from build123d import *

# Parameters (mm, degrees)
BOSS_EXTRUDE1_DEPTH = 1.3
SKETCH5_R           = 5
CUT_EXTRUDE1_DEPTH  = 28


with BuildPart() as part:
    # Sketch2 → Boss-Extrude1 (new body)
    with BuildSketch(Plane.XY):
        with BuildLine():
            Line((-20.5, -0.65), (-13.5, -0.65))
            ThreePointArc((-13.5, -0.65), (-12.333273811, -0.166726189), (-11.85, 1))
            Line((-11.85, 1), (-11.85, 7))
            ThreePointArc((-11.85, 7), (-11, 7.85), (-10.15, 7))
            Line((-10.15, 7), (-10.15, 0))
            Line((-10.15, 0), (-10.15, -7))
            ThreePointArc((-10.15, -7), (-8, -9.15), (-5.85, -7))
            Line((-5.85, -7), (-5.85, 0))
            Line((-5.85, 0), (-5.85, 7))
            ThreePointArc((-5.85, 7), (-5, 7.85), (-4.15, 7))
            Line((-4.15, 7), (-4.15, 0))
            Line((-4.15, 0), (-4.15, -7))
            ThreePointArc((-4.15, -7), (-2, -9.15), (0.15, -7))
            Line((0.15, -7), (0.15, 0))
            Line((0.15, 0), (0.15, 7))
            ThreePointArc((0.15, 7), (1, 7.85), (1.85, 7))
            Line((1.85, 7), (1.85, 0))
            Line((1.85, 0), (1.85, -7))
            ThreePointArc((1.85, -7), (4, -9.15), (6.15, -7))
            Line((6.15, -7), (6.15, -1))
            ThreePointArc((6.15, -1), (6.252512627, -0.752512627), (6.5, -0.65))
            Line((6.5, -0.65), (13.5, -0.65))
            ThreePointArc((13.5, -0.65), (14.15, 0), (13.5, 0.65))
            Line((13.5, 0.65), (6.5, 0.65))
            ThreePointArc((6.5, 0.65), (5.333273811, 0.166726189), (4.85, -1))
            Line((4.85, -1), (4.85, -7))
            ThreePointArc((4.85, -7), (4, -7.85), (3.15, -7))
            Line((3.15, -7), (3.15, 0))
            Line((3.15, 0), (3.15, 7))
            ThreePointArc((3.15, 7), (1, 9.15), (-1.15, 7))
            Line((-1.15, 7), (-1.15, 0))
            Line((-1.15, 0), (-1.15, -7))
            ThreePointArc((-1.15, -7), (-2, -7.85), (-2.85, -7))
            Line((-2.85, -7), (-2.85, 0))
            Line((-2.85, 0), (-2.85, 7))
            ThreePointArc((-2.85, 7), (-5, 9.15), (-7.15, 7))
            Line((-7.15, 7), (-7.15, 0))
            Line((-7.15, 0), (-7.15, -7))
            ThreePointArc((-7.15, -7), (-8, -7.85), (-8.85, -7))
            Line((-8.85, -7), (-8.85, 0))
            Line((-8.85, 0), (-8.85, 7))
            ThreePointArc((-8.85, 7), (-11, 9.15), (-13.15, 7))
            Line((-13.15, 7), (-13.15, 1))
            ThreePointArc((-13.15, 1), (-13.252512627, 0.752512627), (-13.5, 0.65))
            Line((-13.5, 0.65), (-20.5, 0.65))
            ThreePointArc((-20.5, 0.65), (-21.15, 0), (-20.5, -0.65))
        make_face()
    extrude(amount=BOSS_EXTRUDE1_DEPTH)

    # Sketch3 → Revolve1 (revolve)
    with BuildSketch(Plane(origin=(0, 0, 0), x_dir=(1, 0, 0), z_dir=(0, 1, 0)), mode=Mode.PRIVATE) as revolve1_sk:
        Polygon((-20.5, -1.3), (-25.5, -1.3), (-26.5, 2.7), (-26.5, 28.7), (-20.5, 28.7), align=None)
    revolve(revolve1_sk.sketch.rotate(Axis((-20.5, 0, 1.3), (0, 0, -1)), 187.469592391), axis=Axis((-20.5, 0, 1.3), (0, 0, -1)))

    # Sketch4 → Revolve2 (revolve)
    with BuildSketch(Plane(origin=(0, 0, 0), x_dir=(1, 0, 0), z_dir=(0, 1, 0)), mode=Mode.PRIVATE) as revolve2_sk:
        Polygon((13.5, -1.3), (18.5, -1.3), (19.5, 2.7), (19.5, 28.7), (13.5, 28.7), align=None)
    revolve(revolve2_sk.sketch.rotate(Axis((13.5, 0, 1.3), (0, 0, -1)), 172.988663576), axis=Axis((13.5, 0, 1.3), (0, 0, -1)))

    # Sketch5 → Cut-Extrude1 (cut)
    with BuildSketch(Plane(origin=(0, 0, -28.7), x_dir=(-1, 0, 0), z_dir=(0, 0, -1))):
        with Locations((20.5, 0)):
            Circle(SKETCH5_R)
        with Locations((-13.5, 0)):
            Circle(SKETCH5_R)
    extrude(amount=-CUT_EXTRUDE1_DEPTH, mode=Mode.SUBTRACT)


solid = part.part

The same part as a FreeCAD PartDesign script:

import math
import FreeCAD as App
import Part
import Sketcher

doc = App.newDocument("Part")
params = doc.addObject("Spreadsheet::Sheet", "Params")
for row, (alias, value) in enumerate([
    ("sketch1_width", "7 mm"),
    ("sketch1_height", "6 mm"),
    ("sketch1_height2", "14 mm"),
    ("sketch1_radius", "1.65 mm"),
    ("sketch1_radius2", "0.85 mm"),
    ("pad1_length", "1.3 mm"),
    ("sketch2_width", "5 mm"),
    ("sketch2_width2", "6 mm"),
    ("sketch2_height", "30 mm"),
    ("sketch2_height2", "26 mm"),
    ("revolution_angle", "360 deg"),
    ("sketch3_width", "5 mm"),
    ("sketch3_width2", "6 mm"),
    ("sketch3_height", "26 mm"),
    ("sketch3_height2", "30 mm"),
    ("revolution2_angle", "360 deg"),
    ("sketch4_diameter", "10 mm"),
    ("pocket1_length", "28 mm"),
], start=1):
    params.set(f"A{row}", alias)
    params.set(f"B{row}", "=" + value)
    params.setAlias(f"B{row}", alias)

body = doc.addObject("PartDesign::Body", "Body")

# Sketch on XY plane
sketch1 = body.newObject("Sketcher::SketchObject", "Sketch")
sketch1.AttachmentSupport = (doc.getObject("XY_Plane"), [""])
sketch1.MapMode = "FlatFace"
sketch1.addGeometry(Part.LineSegment(App.Vector(-20.5, -0.65, 0), App.Vector(-13.5, -0.65, 0)), False)
sketch1.addGeometry(Part.ArcOfCircle(Part.Circle(App.Vector(-13.5, 1, 0), App.Vector(0, 0, 1), 1.65), math.radians(-90), math.radians(0)), False)
sketch1.addGeometry(Part.LineSegment(App.Vector(-11.85, 1, 0), App.Vector(-11.85, 7, 0)), False)
sketch1.addGeometry(Part.ArcOfCircle(Part.Circle(App.Vector(-11, 7, 0), App.Vector(0, 0, 1), 0.85), math.radians(0), math.radians(180)), False)
sketch1.addGeometry(Part.LineSegment(App.Vector(-10.15, 7, 0), App.Vector(-10.15, -7, 0)), False)
sketch1.addGeometry(Part.ArcOfCircle(Part.Circle(App.Vector(-8, -7, 0), App.Vector(0, 0, 1), 2.15), math.radians(180), math.radians(360)), False)
sketch1.addGeometry(Part.LineSegment(App.Vector(-5.85, -7, 0), App.Vector(-5.85, 7, 0)), False)
sketch1.addGeometry(Part.ArcOfCircle(Part.Circle(App.Vector(-5, 7, 0), App.Vector(0, 0, 1), 0.85), math.radians(0), math.radians(180)), False)
sketch1.addGeometry(Part.LineSegment(App.Vector(-4.15, 7, 0), App.Vector(-4.15, -7, 0)), False)
sketch1.addGeometry(Part.ArcOfCircle(Part.Circle(App.Vector(-2, -7, 0), App.Vector(0, 0, 1), 2.15), math.radians(180), math.radians(360)), False)
sketch1.addGeometry(Part.LineSegment(App.Vector(0.15, -7, 0), App.Vector(0.15, 7, 0)), False)
sketch1.addGeometry(Part.ArcOfCircle(Part.Circle(App.Vector(1, 7, 0), App.Vector(0, 0, 1), 0.85), math.radians(0), math.radians(180)), False)
sketch1.addGeometry(Part.LineSegment(App.Vector(1.85, 7, 0), App.Vector(1.85, -7, 0)), False)
sketch1.addGeometry(Part.ArcOfCircle(Part.Circle(App.Vector(4, -7, 0), App.Vector(0, 0, 1), 2.15), math.radians(180), math.radians(360)), False)
sketch1.addGeometry(Part.LineSegment(App.Vector(6.15, -7, 0), App.Vector(6.15, -1, 0)), False)
sketch1.addGeometry(Part.ArcOfCircle(Part.Circle(App.Vector(6.5, -1, 0), App.Vector(0, 0, 1), 0.35), math.radians(90), math.radians(180)), False)
sketch1.addGeometry(Part.LineSegment(App.Vector(6.5, -0.65, 0), App.Vector(13.5, -0.65, 0)), False)
sketch1.addGeometry(Part.ArcOfCircle(Part.Circle(App.Vector(13.5, 0, 0), App.Vector(0, 0, 1), 0.65), math.radians(-90), math.radians(90)), False)
sketch1.addGeometry(Part.LineSegment(App.Vector(13.5, 0.65, 0), App.Vector(6.5, 0.65, 0)), False)
sketch1.addGeometry(Part.ArcOfCircle(Part.Circle(App.Vector(6.5, -1, 0), App.Vector(0, 0, 1), 1.65), math.radians(90), math.radians(180)), False)
sketch1.addGeometry(Part.LineSegment(App.Vector(4.85, -1, 0), App.Vector(4.85, -7, 0)), False)
sketch1.addGeometry(Part.ArcOfCircle(Part.Circle(App.Vector(4, -7, 0), App.Vector(0, 0, 1), 0.85), math.radians(180), math.radians(360)), False)
sketch1.addGeometry(Part.LineSegment(App.Vector(3.15, -7, 0), App.Vector(3.15, 7, 0)), False)
sketch1.addGeometry(Part.ArcOfCircle(Part.Circle(App.Vector(1, 7, 0), App.Vector(0, 0, 1), 2.15), math.radians(0), math.radians(180)), False)
sketch1.addGeometry(Part.LineSegment(App.Vector(-1.15, 7, 0), App.Vector(-1.15, -7, 0)), False)
sketch1.addGeometry(Part.ArcOfCircle(Part.Circle(App.Vector(-2, -7, 0), App.Vector(0, 0, 1), 0.85), math.radians(180), math.radians(360)), False)
sketch1.addGeometry(Part.LineSegment(App.Vector(-2.85, -7, 0), App.Vector(-2.85, 7, 0)), False)
sketch1.addGeometry(Part.ArcOfCircle(Part.Circle(App.Vector(-5, 7, 0), App.Vector(0, 0, 1), 2.15), math.radians(0), math.radians(180)), False)
sketch1.addGeometry(Part.LineSegment(App.Vector(-7.15, 7, 0), App.Vector(-7.15, -7, 0)), False)
sketch1.addGeometry(Part.ArcOfCircle(Part.Circle(App.Vector(-8, -7, 0), App.Vector(0, 0, 1), 0.85), math.radians(180), math.radians(360)), False)
sketch1.addGeometry(Part.LineSegment(App.Vector(-8.85, -7, 0), App.Vector(-8.85, 7, 0)), False)
sketch1.addGeometry(Part.ArcOfCircle(Part.Circle(App.Vector(-11, 7, 0), App.Vector(0, 0, 1), 2.15), math.radians(0), math.radians(180)), False)
sketch1.addGeometry(Part.LineSegment(App.Vector(-13.15, 7, 0), App.Vector(-13.15, 1, 0)), False)
sketch1.addGeometry(Part.ArcOfCircle(Part.Circle(App.Vector(-13.5, 1, 0), App.Vector(0, 0, 1), 0.35), math.radians(-90), math.radians(0)), False)
sketch1.addGeometry(Part.LineSegment(App.Vector(-13.5, 0.65, 0), App.Vector(-20.5, 0.65, 0)), False)
sketch1.addGeometry(Part.ArcOfCircle(Part.Circle(App.Vector(-20.5, 0, 0), App.Vector(0, 0, 1), 0.65), math.radians(90), math.radians(270)), False)
sketch1.addConstraint(Sketcher.Constraint("Tangent", 0, 2, 1, 1))
sketch1.addConstraint(Sketcher.Constraint("Tangent", 1, 2, 2, 1))
sketch1.addConstraint(Sketcher.Constraint("Tangent", 2, 2, 3, 2))
sketch1.addConstraint(Sketcher.Constraint("Tangent", 3, 1, 4, 1))
sketch1.addConstraint(Sketcher.Constraint("Tangent", 4, 2, 5, 1))
sketch1.addConstraint(Sketcher.Constraint("Tangent", 5, 2, 6, 1))
sketch1.addConstraint(Sketcher.Constraint("Tangent", 6, 2, 7, 2))
sketch1.addConstraint(Sketcher.Constraint("Tangent", 7, 1, 8, 1))
sketch1.addConstraint(Sketcher.Constraint("Tangent", 8, 2, 9, 1))
sketch1.addConstraint(Sketcher.Constraint("Tangent", 9, 2, 10, 1))
sketch1.addConstraint(Sketcher.Constraint("Tangent", 10, 2, 11, 2))
sketch1.addConstraint(Sketcher.Constraint("Tangent", 11, 1, 12, 1))
sketch1.addConstraint(Sketcher.Constraint("Tangent", 12, 2, 13, 1))
sketch1.addConstraint(Sketcher.Constraint("Tangent", 13, 2, 14, 1))
sketch1.addConstraint(Sketcher.Constraint("Tangent", 14, 2, 15, 2))
sketch1.addConstraint(Sketcher.Constraint("Tangent", 15, 1, 16, 1))
sketch1.addConstraint(Sketcher.Constraint("Tangent", 16, 2, 17, 1))
sketch1.addConstraint(Sketcher.Constraint("Tangent", 17, 2, 18, 1))
sketch1.addConstraint(Sketcher.Constraint("Tangent", 18, 2, 19, 1))
sketch1.addConstraint(Sketcher.Constraint("Tangent", 19, 2, 20, 1))
sketch1.addConstraint(Sketcher.Constraint("Tangent", 20, 2, 21, 2))
sketch1.addConstraint(Sketcher.Constraint("Tangent", 21, 1, 22, 1))
sketch1.addConstraint(Sketcher.Constraint("Tangent", 22, 2, 23, 1))
sketch1.addConstraint(Sketcher.Constraint("Tangent", 23, 2, 24, 1))
sketch1.addConstraint(Sketcher.Constraint("Tangent", 24, 2, 25, 2))
sketch1.addConstraint(Sketcher.Constraint("Tangent", 25, 1, 26, 1))
sketch1.addConstraint(Sketcher.Constraint("Tangent", 26, 2, 27, 1))
sketch1.addConstraint(Sketcher.Constraint("Tangent", 27, 2, 28, 1))
sketch1.addConstraint(Sketcher.Constraint("Tangent", 28, 2, 29, 2))
sketch1.addConstraint(Sketcher.Constraint("Tangent", 29, 1, 30, 1))
sketch1.addConstraint(Sketcher.Constraint("Tangent", 30, 2, 31, 1))
sketch1.addConstraint(Sketcher.Constraint("Tangent", 31, 2, 32, 1))
sketch1.addConstraint(Sketcher.Constraint("Tangent", 32, 2, 33, 2))
sketch1.addConstraint(Sketcher.Constraint("Tangent", 33, 1, 34, 1))
sketch1.addConstraint(Sketcher.Constraint("Tangent", 34, 2, 35, 1))
sketch1.addConstraint(Sketcher.Constraint("Tangent", 35, 2, 0, 1))
sketch1.addConstraint(Sketcher.Constraint("Horizontal", 0))
sketch1.addConstraint(Sketcher.Constraint("Vertical", 2))
sketch1.addConstraint(Sketcher.Constraint("Vertical", 4))
sketch1.addConstraint(Sketcher.Constraint("Vertical", 6))
sketch1.addConstraint(Sketcher.Constraint("Vertical", 8))
sketch1.addConstraint(Sketcher.Constraint("Vertical", 10))
sketch1.addConstraint(Sketcher.Constraint("Vertical", 12))
sketch1.addConstraint(Sketcher.Constraint("Vertical", 14))
sketch1.addConstraint(Sketcher.Constraint("Horizontal", 16))
sketch1.addConstraint(Sketcher.Constraint("Horizontal", 18))
sketch1.addConstraint(Sketcher.Constraint("Vertical", 20))
sketch1.addConstraint(Sketcher.Constraint("Vertical", 22))
sketch1.addConstraint(Sketcher.Constraint("Vertical", 24))
sketch1.addConstraint(Sketcher.Constraint("Vertical", 26))
sketch1.addConstraint(Sketcher.Constraint("Vertical", 28))
sketch1.addConstraint(Sketcher.Constraint("Vertical", 30))
sketch1.addConstraint(Sketcher.Constraint("Vertical", 32))
sketch1.addConstraint(Sketcher.Constraint("Horizontal", 34))
sketch1.addConstraint(Sketcher.Constraint("Coincident", 19, 3, 15, 3))
sketch1.addConstraint(Sketcher.Constraint("Coincident", 21, 3, 13, 3))
sketch1.addConstraint(Sketcher.Constraint("Coincident", 23, 3, 11, 3))
sketch1.addConstraint(Sketcher.Constraint("Coincident", 25, 3, 9, 3))
sketch1.addConstraint(Sketcher.Constraint("Coincident", 27, 3, 7, 3))
sketch1.addConstraint(Sketcher.Constraint("Coincident", 29, 3, 5, 3))
sketch1.addConstraint(Sketcher.Constraint("Coincident", 31, 3, 3, 3))
sketch1.addConstraint(Sketcher.Constraint("Coincident", 33, 3, 1, 3))
sketch1.addConstraint(Sketcher.Constraint("Equal", 3, 7))
sketch1.addConstraint(Sketcher.Constraint("Equal", 5, 9))
sketch1.addConstraint(Sketcher.Constraint("Equal", 7, 11))
sketch1.addConstraint(Sketcher.Constraint("Equal", 9, 13))
sketch1.addConstraint(Sketcher.Constraint("Equal", 1, 19))
sketch1.addConstraint(Sketcher.Constraint("Equal", 11, 21))
sketch1.addConstraint(Sketcher.Constraint("Symmetric", 0, 2, 17, 2, -1, 1))
sketch1.addConstraint(Sketcher.Constraint("PointOnObject", 17, 3, -1))
sketch1.addConstraint(Sketcher.Constraint("Horizontal", 3, 3, 7, 3))
sketch1.addConstraint(Sketcher.Constraint("Horizontal", 5, 3, 9, 3))
sketch1.addConstraint(Sketcher.Constraint("Horizontal", 7, 3, 11, 3))
sketch1.addConstraint(Sketcher.Constraint("Horizontal", 9, 3, 13, 3))
sketch1.addConstraint(Sketcher.Constraint("Equal", 0, 16))
sketch1.addConstraint(Sketcher.Constraint("Equal", 2, 14))
sketch1.addConstraint(Sketcher.Constraint("DistanceX", 0, 1, 0, 2, 7.0))
sketch1.addConstraint(Sketcher.Constraint("DistanceY", 2, 1, 2, 2, 6.0))
sketch1.addConstraint(Sketcher.Constraint("DistanceY", 4, 2, 4, 1, 14.0))
sketch1.addConstraint(Sketcher.Constraint("Radius", 1, 1.65))
sketch1.addConstraint(Sketcher.Constraint("Radius", 3, 0.85))
sketch1.setExpression("Constraints[76]", "Params.sketch1_width")
sketch1.setExpression("Constraints[77]", "Params.sketch1_height")
sketch1.setExpression("Constraints[78]", "Params.sketch1_height2")
sketch1.setExpression("Constraints[79]", "Params.sketch1_radius")
sketch1.setExpression("Constraints[80]", "Params.sketch1_radius2")
pad1 = body.newObject("PartDesign::Pad", "Pad")
pad1.Profile = sketch1
pad1.setExpression("Length", "Params.pad1_length")

# Sketch on XZ plane
sketch2 = body.newObject("Sketcher::SketchObject", "Sketch001")
sketch2.AttachmentSupport = (doc.getObject("XZ_Plane"), [""])
sketch2.MapMode = "FlatFace"
sketch2.addGeometry(Part.LineSegment(App.Vector(-25.5, 1.3, 0), App.Vector(-20.5, 1.3, 0)), False)
sketch2.addGeometry(Part.LineSegment(App.Vector(-20.5, 1.3, 0), App.Vector(-20.5, -28.7, 0)), False)
sketch2.addGeometry(Part.LineSegment(App.Vector(-20.5, -28.7, 0), App.Vector(-26.5, -28.7, 0)), False)
sketch2.addGeometry(Part.LineSegment(App.Vector(-26.5, -28.7, 0), App.Vector(-26.5, -2.7, 0)), False)
sketch2.addGeometry(Part.LineSegment(App.Vector(-26.5, -2.7, 0), App.Vector(-25.5, 1.3, 0)), False)
sketch2.addGeometry(Part.LineSegment(App.Vector(-20.5, 1.3, 0), App.Vector(-20.5, -28.7, 0)), True)  # axis
sketch2.addConstraint(Sketcher.Constraint("Coincident", 0, 2, 1, 1))
sketch2.addConstraint(Sketcher.Constraint("Coincident", 1, 2, 2, 1))
sketch2.addConstraint(Sketcher.Constraint("Coincident", 2, 2, 3, 1))
sketch2.addConstraint(Sketcher.Constraint("Coincident", 3, 2, 4, 1))
sketch2.addConstraint(Sketcher.Constraint("Coincident", 4, 2, 0, 1))
sketch2.addConstraint(Sketcher.Constraint("Horizontal", 0))
sketch2.addConstraint(Sketcher.Constraint("Vertical", 1))
sketch2.addConstraint(Sketcher.Constraint("Horizontal", 2))
sketch2.addConstraint(Sketcher.Constraint("Vertical", 3))
sketch2.addConstraint(Sketcher.Constraint("Vertical", 5))
sketch2.addConstraint(Sketcher.Constraint("Coincident", 5, 1, 0, 2))
sketch2.addConstraint(Sketcher.Constraint("Horizontal", 2, 2, 5, 2))
sketch2.addConstraint(Sketcher.Constraint("DistanceX", 0, 1, 0, 2, 5.0))
sketch2.addConstraint(Sketcher.Constraint("DistanceX", 2, 2, 2, 1, 6.0))
sketch2.addConstraint(Sketcher.Constraint("DistanceY", 1, 2, 1, 1, 30.0))
sketch2.addConstraint(Sketcher.Constraint("DistanceY", 3, 1, 3, 2, 26.0))
sketch2.addConstraint(Sketcher.Constraint("DistanceX", 0, 2, -1, 1, 20.5))
sketch2.addConstraint(Sketcher.Constraint("DistanceY", -1, 1, 0, 2, 1.3))
sketch2.setExpression("Constraints[12]", "Params.sketch2_width")
sketch2.setExpression("Constraints[13]", "Params.sketch2_width2")
sketch2.setExpression("Constraints[14]", "Params.sketch2_height")
sketch2.setExpression("Constraints[15]", "Params.sketch2_height2")
revolution = body.newObject("PartDesign::Revolution", "Revolution")
revolution.Profile = sketch2
revolution.ReferenceAxis = (sketch2, ["Axis0"])
revolution.setExpression("Angle", "Params.revolution_angle")

# Sketch on XZ plane
sketch3 = body.newObject("Sketcher::SketchObject", "Sketch002")
sketch3.AttachmentSupport = (doc.getObject("XZ_Plane"), [""])
sketch3.MapMode = "FlatFace"
sketch3.addGeometry(Part.LineSegment(App.Vector(13.5, 1.3, 0), App.Vector(18.5, 1.3, 0)), False)
sketch3.addGeometry(Part.LineSegment(App.Vector(18.5, 1.3, 0), App.Vector(19.5, -2.7, 0)), False)
sketch3.addGeometry(Part.LineSegment(App.Vector(19.5, -2.7, 0), App.Vector(19.5, -28.7, 0)), False)
sketch3.addGeometry(Part.LineSegment(App.Vector(19.5, -28.7, 0), App.Vector(13.5, -28.7, 0)), False)
sketch3.addGeometry(Part.LineSegment(App.Vector(13.5, -28.7, 0), App.Vector(13.5, 1.3, 0)), False)
sketch3.addGeometry(Part.LineSegment(App.Vector(13.5, 1.3, 0), App.Vector(13.5, -28.7, 0)), True)  # axis
sketch3.addConstraint(Sketcher.Constraint("Coincident", 0, 2, 1, 1))
sketch3.addConstraint(Sketcher.Constraint("Coincident", 1, 2, 2, 1))
sketch3.addConstraint(Sketcher.Constraint("Coincident", 2, 2, 3, 1))
sketch3.addConstraint(Sketcher.Constraint("Coincident", 3, 2, 4, 1))
sketch3.addConstraint(Sketcher.Constraint("Coincident", 4, 2, 0, 1))
sketch3.addConstraint(Sketcher.Constraint("Horizontal", 0))
sketch3.addConstraint(Sketcher.Constraint("Vertical", 2))
sketch3.addConstraint(Sketcher.Constraint("Horizontal", 3))
sketch3.addConstraint(Sketcher.Constraint("Vertical", 4))
sketch3.addConstraint(Sketcher.Constraint("Vertical", 5))
sketch3.addConstraint(Sketcher.Constraint("Coincident", 5, 1, 4, 2))
sketch3.addConstraint(Sketcher.Constraint("Horizontal", 2, 2, 5, 2))
sketch3.addConstraint(Sketcher.Constraint("DistanceX", 0, 1, 0, 2, 5.0))
sketch3.addConstraint(Sketcher.Constraint("DistanceX", 3, 2, 3, 1, 6.0))
sketch3.addConstraint(Sketcher.Constraint("DistanceY", 2, 2, 2, 1, 26.0))
sketch3.addConstraint(Sketcher.Constraint("DistanceY", 4, 1, 4, 2, 30.0))
sketch3.addConstraint(Sketcher.Constraint("DistanceX", -1, 1, 0, 2, 18.5))
sketch3.addConstraint(Sketcher.Constraint("DistanceY", -1, 1, 0, 2, 1.3))
sketch3.setExpression("Constraints[12]", "Params.sketch3_width")
sketch3.setExpression("Constraints[13]", "Params.sketch3_width2")
sketch3.setExpression("Constraints[14]", "Params.sketch3_height")
sketch3.setExpression("Constraints[15]", "Params.sketch3_height2")
revolution2 = body.newObject("PartDesign::Revolution", "Revolution001")
revolution2.Profile = sketch3
revolution2.ReferenceAxis = (sketch3, ["Axis0"])
revolution2.setExpression("Angle", "Params.revolution2_angle")

# Sketch on XY plane
sketch4 = body.newObject("Sketcher::SketchObject", "Sketch003")
sketch4.AttachmentSupport = (doc.getObject("XY_Plane"), [""])
sketch4.MapMode = "FlatFace"
sketch4.AttachmentOffset = App.Placement(App.Vector(0, 0, -28.7), App.Rotation())
sketch4.addGeometry(Part.Circle(App.Vector(-20, 0, 0), App.Vector(0, 0, 1), 5), False)
sketch4.addGeometry(Part.Circle(App.Vector(14, 0, 0), App.Vector(0, 0, 1), 5), False)
sketch4.addConstraint(Sketcher.Constraint("Equal", 0, 1))
sketch4.addConstraint(Sketcher.Constraint("PointOnObject", 0, 3, -1))
sketch4.addConstraint(Sketcher.Constraint("PointOnObject", 1, 3, -1))
sketch4.addConstraint(Sketcher.Constraint("Diameter", 0, 10.0))
sketch4.addConstraint(Sketcher.Constraint("DistanceX", 0, 3, 1, 3, 34.0))
sketch4.addConstraint(Sketcher.Constraint("DistanceX", 0, 3, -1, 1, 20.5))
sketch4.setExpression("Constraints[3]", "Params.sketch4_diameter")
pocket1 = body.newObject("PartDesign::Pocket", "Pocket")
pocket1.Profile = sketch4
pocket1.setExpression("Length", "Params.pocket1_length")
pocket1.Reversed = True

doc.recompute()
